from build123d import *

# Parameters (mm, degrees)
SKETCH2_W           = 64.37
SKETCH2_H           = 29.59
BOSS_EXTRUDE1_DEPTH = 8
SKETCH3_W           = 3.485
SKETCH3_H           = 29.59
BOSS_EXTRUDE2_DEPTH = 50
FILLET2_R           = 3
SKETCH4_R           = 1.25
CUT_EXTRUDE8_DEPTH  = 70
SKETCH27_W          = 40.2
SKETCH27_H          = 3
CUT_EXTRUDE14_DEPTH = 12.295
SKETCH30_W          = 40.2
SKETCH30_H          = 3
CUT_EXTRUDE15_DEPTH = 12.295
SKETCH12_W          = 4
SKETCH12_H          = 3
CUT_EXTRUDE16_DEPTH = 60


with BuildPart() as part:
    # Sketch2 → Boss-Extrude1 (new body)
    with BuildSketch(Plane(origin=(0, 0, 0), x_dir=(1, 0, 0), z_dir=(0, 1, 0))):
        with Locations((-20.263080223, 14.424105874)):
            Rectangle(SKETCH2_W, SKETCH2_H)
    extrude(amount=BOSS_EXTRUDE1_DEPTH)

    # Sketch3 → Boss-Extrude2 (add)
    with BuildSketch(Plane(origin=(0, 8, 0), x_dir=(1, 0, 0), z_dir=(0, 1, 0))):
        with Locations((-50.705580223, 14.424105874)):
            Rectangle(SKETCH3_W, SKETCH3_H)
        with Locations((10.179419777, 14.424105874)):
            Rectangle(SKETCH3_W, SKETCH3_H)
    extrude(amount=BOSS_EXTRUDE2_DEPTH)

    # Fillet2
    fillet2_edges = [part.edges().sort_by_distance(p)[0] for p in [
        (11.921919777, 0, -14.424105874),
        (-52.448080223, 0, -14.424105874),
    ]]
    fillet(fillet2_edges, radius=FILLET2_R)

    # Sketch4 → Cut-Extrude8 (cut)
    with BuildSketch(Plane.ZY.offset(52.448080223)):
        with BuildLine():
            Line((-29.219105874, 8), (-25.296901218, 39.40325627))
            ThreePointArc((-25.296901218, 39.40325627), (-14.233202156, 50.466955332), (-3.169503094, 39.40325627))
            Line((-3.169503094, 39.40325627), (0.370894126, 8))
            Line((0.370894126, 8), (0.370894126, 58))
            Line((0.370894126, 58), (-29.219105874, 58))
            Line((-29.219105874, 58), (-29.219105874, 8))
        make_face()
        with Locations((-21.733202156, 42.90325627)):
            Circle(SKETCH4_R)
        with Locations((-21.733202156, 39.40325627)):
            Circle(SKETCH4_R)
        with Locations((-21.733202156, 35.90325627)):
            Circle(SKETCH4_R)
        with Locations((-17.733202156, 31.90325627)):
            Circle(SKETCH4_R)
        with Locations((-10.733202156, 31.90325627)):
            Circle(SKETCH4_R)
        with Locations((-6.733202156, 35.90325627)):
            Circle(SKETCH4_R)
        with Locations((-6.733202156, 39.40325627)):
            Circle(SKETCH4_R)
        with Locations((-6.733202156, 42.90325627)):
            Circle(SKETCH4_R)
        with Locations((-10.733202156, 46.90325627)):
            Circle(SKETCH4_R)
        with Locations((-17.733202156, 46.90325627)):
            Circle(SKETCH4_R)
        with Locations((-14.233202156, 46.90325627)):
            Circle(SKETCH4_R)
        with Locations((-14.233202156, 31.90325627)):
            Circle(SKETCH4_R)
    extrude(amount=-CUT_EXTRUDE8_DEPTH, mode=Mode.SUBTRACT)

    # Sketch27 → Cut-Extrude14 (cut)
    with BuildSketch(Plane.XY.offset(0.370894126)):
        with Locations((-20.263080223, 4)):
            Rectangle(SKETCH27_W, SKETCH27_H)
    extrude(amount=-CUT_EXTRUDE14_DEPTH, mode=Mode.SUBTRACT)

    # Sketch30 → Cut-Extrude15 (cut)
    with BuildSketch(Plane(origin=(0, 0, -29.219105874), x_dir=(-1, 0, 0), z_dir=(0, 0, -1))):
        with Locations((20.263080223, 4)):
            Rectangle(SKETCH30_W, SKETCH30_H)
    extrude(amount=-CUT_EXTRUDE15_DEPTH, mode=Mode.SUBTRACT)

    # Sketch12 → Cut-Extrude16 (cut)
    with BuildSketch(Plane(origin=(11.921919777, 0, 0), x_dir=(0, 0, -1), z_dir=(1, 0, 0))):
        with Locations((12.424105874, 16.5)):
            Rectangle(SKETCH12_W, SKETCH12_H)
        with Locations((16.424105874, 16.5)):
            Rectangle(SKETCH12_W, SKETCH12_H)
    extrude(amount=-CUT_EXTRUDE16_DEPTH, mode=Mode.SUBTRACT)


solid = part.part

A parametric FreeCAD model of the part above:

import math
import FreeCAD as App
import Part
import Sketcher

V = App.Vector
Q = App.Units.Quantity


def edges_at(feature, points):
    """Names of the edges that pass closest to the given points."""
    edges = feature.Shape.Edges
    near = lambda p: min(range(len(edges)), key=lambda i: edges[i].distToShape(Part.Vertex(*p))[0])
    return sorted({f"Edge{near(p) + 1}" for p in points})


def add_polygon(sketch, points):
    """Adds a closed chain of lines whose ends are joined by coincident constraints."""
    first, n = sketch.GeometryCount, len(points)
    for a, b in zip(points, points[1:] + points[:1]):
        sketch.addGeometry(Part.LineSegment(App.Vector(*a, 0), App.Vector(*b, 0)), False)
    for i in range(n):
        sketch.addConstraint(Sketcher.Constraint("Coincident", first + i, 2, first + (i + 1) % n, 1))

doc = App.newDocument("Part")
body = doc.addObject("PartDesign::Body", "Body")

# Sketch on XZ plane
sketch1 = body.newObject("Sketcher::SketchObject", "Sketch")
sketch1.AttachmentSupport = (doc.getObject("XZ_Plane"), [""])
sketch1.MapMode = "FlatFace"
add_polygon(sketch1, [(-52.44808, -29.219106), (-52.44808, 0.370894), (11.92192, 0.370894), (11.92192, -29.219106)])  # lines 0-3
sketch1.addConstraint([
    Sketcher.Constraint("Vertical", 0),
    Sketcher.Constraint("Horizontal", 1),
    Sketcher.Constraint("Vertical", 2),
    Sketcher.Constraint("Horizontal", 3),
    Sketcher.Constraint("DistanceX", 1, 1, 1, 2, Q("64.37 mm")),
    Sketcher.Constraint("DistanceY", 0, 1, 0, 2, Q("29.59 mm")),
    Sketcher.Constraint("DistanceX", 0, 2, -1, 1, Q("52.44808 mm")),
    Sketcher.Constraint("DistanceY", -1, 1, 0, 2, Q("0.370894 mm")),
])
pad1 = body.newObject("PartDesign::Pad", "Pad")
pad1.Profile = sketch1
pad1.Length = 8
pad1.Reversed = True

# Sketch on XZ plane
sketch2 = body.newObject("Sketcher::SketchObject", "Sketch001")
sketch2.AttachmentSupport = (doc.getObject("XZ_Plane"), [""])
sketch2.MapMode = "FlatFace"
sketch2.AttachmentOffset = App.Placement(V(0, 0, -8), App.Rotation())
add_polygon(sketch2, [(-52.44808, -29.219106), (-52.44808, 0.370894), (-48.96308, 0.370894), (-48.96308, -29.219106)])  # lines 0-3
add_polygon(sketch2, [(8.43692, -29.219106), (8.43692, 0.370894), (11.92192, 0.370894), (11.92192, -29.219106)])  # lines 4-7
sketch2.addConstraint([
    Sketcher.Constraint("Vertical", 0),
    Sketcher.Constraint("Horizontal", 1),
    Sketcher.Constraint("Vertical", 2),
    Sketcher.Constraint("Horizontal", 3),
    Sketcher.Constraint("Vertical", 4),
    Sketcher.Constraint("Horizontal", 5),
    Sketcher.Constraint("Vertical", 6),
    Sketcher.Constraint("Horizontal", 7),
    Sketcher.Constraint("Horizontal", 1, 2, 4, 2),
    Sketcher.Constraint("Horizontal", 3, 2, 6, 2),
    Sketcher.Constraint("Equal", 3, 5),
    Sketcher.Constraint("DistanceY", 0, 1, 0, 2, Q("29.59 mm")),
    Sketcher.Constraint("DistanceX", 1, 2, 4, 2, Q("57.4 mm")),
    Sketcher.Constraint("DistanceX", 1, 1, 1, 2, Q("3.485 mm")),
    Sketcher.Constraint("DistanceX", 0, 2, -1, 1, Q("52.44808 mm")),
    Sketcher.Constraint("DistanceY", -1, 1, 0, 2, Q("0.370894 mm")),
])
pad2 = body.newObject("PartDesign::Pad", "Pad001")
pad2.Profile = sketch2
pad2.Length = 50
pad2.Reversed = True
doc.recompute()

fillet = body.newObject("PartDesign::Fillet", "Fillet")
fillet.Base = (pad2, edges_at(pad2, [(11.922, 0, -14.424), (-52.448, 0, -14.424)]))
fillet.Radius = 3

# Sketch on YZ plane
sketch3 = body.newObject("Sketcher::SketchObject", "Sketch002")
sketch3.AttachmentSupport = (doc.getObject("YZ_Plane"), [""])
sketch3.MapMode = "FlatFace"
sketch3.AttachmentOffset = App.Placement(V(0, 0, -52.44808), App.Rotation())
sketch3.addGeometry([
    Part.LineSegment(V(8, -29.219106, 0), V(39.403256, -25.296901, 0)),  # 0
    Part.ArcOfCircle(Part.Circle(V(39.403256, -14.233202, 0), V(0, 0, 1), 11.063699), math.radians(-90), math.radians(90)),  # 1
    Part.LineSegment(V(39.403256, -3.169503, 0), V(8, 0.370894, 0)),  # 2
    Part.LineSegment(V(8, 0.370894, 0), V(58, 0.370894, 0)),  # 3
    Part.LineSegment(V(58, 0.370894, 0), V(58, -29.219106, 0)),  # 4
    Part.LineSegment(V(58, -29.219106, 0), V(8, -29.219106, 0)),  # 5
    Part.Circle(V(42.903256, -21.733202, 0), V(0, 0, 1), 1.25),  # 6
    Part.Circle(V(39.403256, -21.733202, 0), V(0, 0, 1), 1.25),  # 7
    Part.Circle(V(35.903256, -21.733202, 0), V(0, 0, 1), 1.25),  # 8
    Part.Circle(V(31.903256, -17.733202, 0), V(0, 0, 1), 1.25),  # 9
    Part.Circle(V(31.903256, -10.733202, 0), V(0, 0, 1), 1.25),  # 10
    Part.Circle(V(35.903256, -6.733202, 0), V(0, 0, 1), 1.25),  # 11
    Part.Circle(V(39.403256, -6.733202, 0), V(0, 0, 1), 1.25),  # 12
    Part.Circle(V(42.903256, -6.733202, 0), V(0, 0, 1), 1.25),  # 13
    Part.Circle(V(46.903256, -10.733202, 0), V(0, 0, 1), 1.25),  # 14
    Part.Circle(V(46.903256, -17.733202, 0), V(0, 0, 1), 1.25),  # 15
    Part.Circle(V(46.903256, -14.233202, 0), V(0, 0, 1), 1.25),  # 16
    Part.Circle(V(31.903256, -14.233202, 0), V(0, 0, 1), 1.25),  # 17
], False)
sketch3.addConstraint([
    Sketcher.Constraint("Coincident", 0, 2, 1, 1),
    Sketcher.Constraint("Coincident", 1, 2, 2, 1),
    Sketcher.Constraint("Coincident", 2, 2, 3, 1),
    Sketcher.Constraint("Coincident", 3, 2, 4, 1),
    Sketcher.Constraint("Coincident", 4, 2, 5, 1),
    Sketcher.Constraint("Coincident", 5, 2, 0, 1),
    Sketcher.Constraint("Horizontal", 3),
    Sketcher.Constraint("Vertical", 4),
    Sketcher.Constraint("Horizontal", 5),
    Sketcher.Constraint("Equal", 6, 7),
    Sketcher.Constraint("Equal", 7, 8),
    Sketcher.Constraint("Equal", 8, 9),
    Sketcher.Constraint("Equal", 9, 10),
    Sketcher.Constraint("Equal", 10, 11),
    Sketcher.Constraint("Equal", 11, 12),
    Sketcher.Constraint("Equal", 12, 13),
    Sketcher.Constraint("Equal", 13, 14),
    Sketcher.Constraint("Equal", 14, 15),
    Sketcher.Constraint("Equal", 15, 16),
    Sketcher.Constraint("Equal", 16, 17),
    Sketcher.Constraint("Horizontal", 6, 3, 7, 3),
    Sketcher.Constraint("Horizontal", 7, 3, 8, 3),
    Sketcher.Constraint("Horizontal", 11, 3, 12, 3),
    Sketcher.Constraint("Horizontal", 12, 3, 13, 3),
    Sketcher.Constraint("Horizontal", 10, 3, 14, 3),
    Sketcher.Constraint("Horizontal", 9, 3, 15, 3),
    Sketcher.Constraint("Horizontal", 1, 3, 16, 3),
    Sketcher.Constraint("Horizontal", 16, 3, 17, 3),
    Sketcher.Constraint("Vertical", 1, 3, 7, 3),
    Sketcher.Constraint("Vertical", 9, 3, 10, 3),
    Sketcher.Constraint("Vertical", 8, 3, 11, 3),
    Sketcher.Constraint("Vertical", 7, 3, 12, 3),
    Sketcher.Constraint("Vertical", 6, 3, 13, 3),
    Sketcher.Constraint("Vertical", 14, 3, 15, 3),
    Sketcher.Constraint("Vertical", 15, 3, 16, 3),
    Sketcher.Constraint("Vertical", 10, 3, 17, 3),
    Sketcher.Constraint("Vertical", 12, 3, 0, 2),
    Sketcher.Constraint("Vertical", 0, 2, 1, 2),
    Sketcher.Constraint("Vertical", 2, 2, 5, 2),
    Sketcher.Constraint("Diameter", 6, Q("2.5 mm")),
    Sketcher.Constraint("DistanceX", 3, 1, 3, 2, Q("50 mm")),
    Sketcher.Constraint("DistanceX", -1, 1, 2, 2, Q("8 mm")),
    Sketcher.Constraint("DistanceX", 8, 3, 6, 3, Q("7 mm")),
    Sketcher.Constraint("DistanceX", 9, 3, 8, 3, Q("4 mm")),
    Sketcher.Constraint("DistanceY", 8, 3, 9, 3, Q("4 mm")),
    Sketcher.Constraint("DistanceY", 9, 3, 10, 3, Q("7 mm")),
    Sketcher.Constraint("DistanceY", 10, 3, 11, 3, Q("4 mm")),
    Sketcher.Constraint("DistanceX", 13, 3, 14, 3, Q("4 mm")),
    Sketcher.Constraint("DistanceY", 4, 2, 4, 1, Q("29.59 mm")),
    Sketcher.Constraint("Radius", 1, Q("11.063699 mm")),
    Sketcher.Constraint("DistanceX", 1, 3, 6, 3, Q("3.5 mm")),
    Sketcher.Constraint("DistanceY", 6, 3, 1, 3, Q("7.5 mm")),
    Sketcher.Constraint("DistanceY", 0, 2, -1, 1, Q("25.296901 mm")),
    Sketcher.Constraint("Distance", 0, Q("31.647246 mm")),
    Sketcher.Constraint("Distance", 2, Q("31.602198 mm")),
])
pocket1 = body.newObject("PartDesign::Pocket", "Pocket")
pocket1.Profile = sketch3
pocket1.Length = 70
pocket1.Reversed = True

# Sketch on XY plane
sketch4 = body.newObject("Sketcher::SketchObject", "Sketch003")
sketch4.AttachmentSupport = (doc.getObject("XY_Plane"), [""])
sketch4.MapMode = "FlatFace"
sketch4.AttachmentOffset = App.Placement(V(0, 0, 0.370894), App.Rotation())
add_polygon(sketch4, [(-40.36308, 5.5), (-40.36308, 2.5), (-0.16308, 2.5), (-0.16308, 5.5)])  # lines 0-3
sketch4.addConstraint([
    Sketcher.Constraint("Vertical", 0),
    Sketcher.Constraint("Horizontal", 1),
    Sketcher.Constraint("Vertical", 2),
    Sketcher.Constraint("Horizontal", 3),
    Sketcher.Constraint("DistanceY", 0, 2, 0, 1, Q("3 mm")),
    Sketcher.Constraint("DistanceX", 1, 1, 1, 2, Q("40.2 mm")),
    Sketcher.Constraint("DistanceY", -1, 1, 0, 2, Q("2.5 mm")),
    Sketcher.Constraint("DistanceX", 0, 2, -1, 1, Q("40.36308 mm")),
])
pocket2 = body.newObject("PartDesign::Pocket", "Pocket001")
pocket2.Profile = sketch4
pocket2.Length = 12.295

# Sketch on XY plane
sketch5 = body.newObject("Sketcher::SketchObject", "Sketch004")
sketch5.AttachmentSupport = (doc.getObject("XY_Plane"), [""])
sketch5.MapMode = "FlatFace"
sketch5.AttachmentOffset = App.Placement(V(0, 0, -29.219106), App.Rotation())
add_polygon(sketch5, [(-0.16308, 5.5), (-0.16308, 2.5), (-40.36308, 2.5), (-40.36308, 5.5)])  # lines 0-3
sketch5.addConstraint([
    Sketcher.Constraint("Vertical", 0),
    Sketcher.Constraint("Horizontal", 1),
    Sketcher.Constraint("Vertical", 2),
    Sketcher.Constraint("Horizontal", 3),
    Sketcher.Constraint("DistanceY", 0, 2, 0, 1, Q("3 mm")),
    Sketcher.Constraint("DistanceX", 1, 2, 1, 1, Q("40.2 mm")),
    Sketcher.Constraint("DistanceY", -1, 1, 0, 2, Q("2.5 mm")),
    Sketcher.Constraint("DistanceX", 0, 2, -1, 1, Q("0.16308 mm")),
])
pocket3 = body.newObject("PartDesign::Pocket", "Pocket002")
pocket3.Profile = sketch5
pocket3.Length = 12.295
pocket3.Reversed = True

# Sketch on YZ plane
sketch6 = body.newObject("Sketcher::SketchObject", "Sketch005")
sketch6.AttachmentSupport = (doc.getObject("YZ_Plane"), [""])
sketch6.MapMode = "FlatFace"
sketch6.AttachmentOffset = App.Placement(V(0, 0, 11.92192), App.Rotation())
add_polygon(sketch6, [(18, -10.424106), (15, -10.424106), (15, -18.424106), (18, -18.424106)])  # lines 0-3
sketch6.addConstraint([
    Sketcher.Constraint("Horizontal", 0),
    Sketcher.Constraint("Vertical", 1),
    Sketcher.Constraint("Horizontal", 2),
    Sketcher.Constraint("Vertical", 3),
    Sketcher.Constraint("DistanceX", 0, 2, 0, 1, Q("3 mm")),
    Sketcher.Constraint("DistanceY", 1, 2, 1, 1, Q("8 mm")),
    Sketcher.Constraint("DistanceX", -1, 1, 0, 2, Q("15 mm")),
    Sketcher.Constraint("DistanceY", 0, 2, -1, 1, Q("10.424106 mm")),
])
pocket4 = body.newObject("PartDesign::Pocket", "Pocket003")
pocket4.Profile = sketch6
pocket4.Length = 60

doc.recompute()
